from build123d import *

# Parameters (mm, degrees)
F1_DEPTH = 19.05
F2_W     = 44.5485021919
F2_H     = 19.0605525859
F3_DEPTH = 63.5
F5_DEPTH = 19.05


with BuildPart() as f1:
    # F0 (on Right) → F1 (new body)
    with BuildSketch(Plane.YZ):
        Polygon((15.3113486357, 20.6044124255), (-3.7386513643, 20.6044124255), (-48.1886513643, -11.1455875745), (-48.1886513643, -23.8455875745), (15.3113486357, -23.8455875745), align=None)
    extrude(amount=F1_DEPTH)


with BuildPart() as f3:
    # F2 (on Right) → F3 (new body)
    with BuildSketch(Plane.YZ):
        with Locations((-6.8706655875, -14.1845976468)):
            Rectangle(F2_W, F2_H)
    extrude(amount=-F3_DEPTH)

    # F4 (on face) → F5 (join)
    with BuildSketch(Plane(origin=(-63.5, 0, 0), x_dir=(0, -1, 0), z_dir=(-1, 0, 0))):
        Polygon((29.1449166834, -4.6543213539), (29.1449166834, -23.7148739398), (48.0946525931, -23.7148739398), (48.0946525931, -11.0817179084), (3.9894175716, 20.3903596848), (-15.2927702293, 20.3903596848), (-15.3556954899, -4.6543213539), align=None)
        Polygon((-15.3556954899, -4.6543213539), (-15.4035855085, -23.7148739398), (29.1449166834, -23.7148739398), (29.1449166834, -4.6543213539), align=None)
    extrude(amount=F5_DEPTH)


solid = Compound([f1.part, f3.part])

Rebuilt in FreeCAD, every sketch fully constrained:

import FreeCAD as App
import Part
import Sketcher
Q = App.Units.Quantity


def add_polygon(sketch, points):
    """Adds a closed chain of lines whose ends are joined by coincident constraints."""
    first, n = sketch.GeometryCount, len(points)
    for a, b in zip(points, points[1:] + points[:1]):
        sketch.addGeometry(Part.LineSegment(App.Vector(*a, 0), App.Vector(*b, 0)), False)
    for i in range(n):
        sketch.addConstraint(Sketcher.Constraint("Coincident", first + i, 2, first + (i + 1) % n, 1))

doc = App.newDocument("Part")
body = doc.addObject("PartDesign::Body", "Body")

# Sketch on YZ plane
sketch1 = doc.addObject("Sketcher::SketchObject", "Sketch")
body.addObject(sketch1)
sketch1.AttachmentSupport = (doc.YZ_Plane, [""])
sketch1.MapMode = "FlatFace"
add_polygon(sketch1, [(15, 21), (-4, 21), (-48, -11), (-48, -24), (15, -24)])  # lines 0-4
sketch1.addConstraint([
    Sketcher.Constraint("Horizontal", 0),
    Sketcher.Constraint("Vertical", 2),
    Sketcher.Constraint("Horizontal", 3),
    Sketcher.Constraint("Vertical", 4),
    Sketcher.Constraint("DistanceX", 3, 1, 3, 2, Q("2.5 in")),
    Sketcher.Constraint("DistanceY", 2, 2, 2, 1, Q("0.5 in")),
    Sketcher.Constraint("DistanceX", 0, 2, 0, 1, Q("0.75 in")),
    Sketcher.Constraint("DistanceY", 4, 1, 4, 2, Q("1.75 in")),
    Sketcher.Constraint("DistanceX", 0, 2, -1, 1, Q("3.738651 mm")),
    Sketcher.Constraint("DistanceY", -1, 1, 0, 2, Q("20.604412 mm")),
])
pad1 = doc.addObject("PartDesign::Pad", "Pad")
body.addObject(pad1)
pad1.Profile = sketch1
pad1.Length = Q("0.75 in")
body2 = doc.addObject("PartDesign::Body", "Body001")

# Sketch on YZ plane
sketch2 = doc.addObject("Sketcher::SketchObject", "Sketch001")
body2.addObject(sketch2)
sketch2.AttachmentSupport = (doc.getObject("YZ_Plane001"), [""])
sketch2.MapMode = "FlatFace"
add_polygon(sketch2, [(-29, -5), (-29, -24), (15, -24), (15, -5)])  # lines 0-3
sketch2.addConstraint([
    Sketcher.Constraint("Vertical", 0),
    Sketcher.Constraint("Horizontal", 1),
    Sketcher.Constraint("Vertical", 2),
    Sketcher.Constraint("Horizontal", 3),
    Sketcher.Constraint("DistanceX", 1, 1, 1, 2, Q("44.548502 mm")),
    Sketcher.Constraint("DistanceY", 0, 2, 0, 1, Q("19.060553 mm")),
    Sketcher.Constraint("DistanceY", 2, 2, -1, 1, Q("4.654321 mm")),
    Sketcher.Constraint("DistanceX", 0, 2, -1, 1, Q("29.144917 mm")),
])
pad2 = doc.addObject("PartDesign::Pad", "Pad001")
body2.addObject(pad2)
pad2.Profile = sketch2
pad2.Length = Q("2.5 in")
pad2.Reversed = True

# Sketch on YZ plane
sketch3 = doc.addObject("Sketcher::SketchObject", "Sketch002")
body2.addObject(sketch3)
sketch3.AttachmentSupport = (doc.getObject("YZ_Plane001"), [""])
sketch3.MapMode = "FlatFace"
sketch3.AttachmentOffset = App.Placement(App.Vector(0, 0, -2.5 * 25.4), App.Rotation())
add_polygon(sketch3, [(-48, -24), (-48, -11), (-4, 20), (15, 20), (15, -5), (15, -24)])  # lines 0-5
sketch3.addConstraint([
    Sketcher.Constraint("Vertical", 0),
    Sketcher.Constraint("Horizontal", 2),
    Sketcher.Constraint("Horizontal", 5),
    Sketcher.Constraint("Parallel", 3, 4),
    Sketcher.Constraint("DistanceX", 5, 2, 5, 1, Q("63.498238 mm")),
    Sketcher.Constraint("Distance", 3, Q("25.04476 mm")),
    Sketcher.Constraint("DistanceX", 2, 1, 2, 2, Q("19.282188 mm")),
    Sketcher.Constraint("DistanceY", 0, 1, 0, 2, Q("12.633156 mm")),
    Sketcher.Constraint("DistanceY", -1, 1, 1, 2, Q("20.39036 mm")),
    Sketcher.Constraint("DistanceX", -1, 1, 2, 2, Q("15.29277 mm")),
    Sketcher.Constraint("DistanceX", 0, 2, 3, 2, Q("63.450348 mm")),
    Sketcher.Constraint("Distance", 1, Q("54.182686 mm")),
])
pad3 = doc.addObject("PartDesign::Pad", "Pad002")
body2.addObject(pad3)
pad3.Profile = sketch3
pad3.Length = Q("0.75 in")
pad3.Reversed = True

doc.recompute()
